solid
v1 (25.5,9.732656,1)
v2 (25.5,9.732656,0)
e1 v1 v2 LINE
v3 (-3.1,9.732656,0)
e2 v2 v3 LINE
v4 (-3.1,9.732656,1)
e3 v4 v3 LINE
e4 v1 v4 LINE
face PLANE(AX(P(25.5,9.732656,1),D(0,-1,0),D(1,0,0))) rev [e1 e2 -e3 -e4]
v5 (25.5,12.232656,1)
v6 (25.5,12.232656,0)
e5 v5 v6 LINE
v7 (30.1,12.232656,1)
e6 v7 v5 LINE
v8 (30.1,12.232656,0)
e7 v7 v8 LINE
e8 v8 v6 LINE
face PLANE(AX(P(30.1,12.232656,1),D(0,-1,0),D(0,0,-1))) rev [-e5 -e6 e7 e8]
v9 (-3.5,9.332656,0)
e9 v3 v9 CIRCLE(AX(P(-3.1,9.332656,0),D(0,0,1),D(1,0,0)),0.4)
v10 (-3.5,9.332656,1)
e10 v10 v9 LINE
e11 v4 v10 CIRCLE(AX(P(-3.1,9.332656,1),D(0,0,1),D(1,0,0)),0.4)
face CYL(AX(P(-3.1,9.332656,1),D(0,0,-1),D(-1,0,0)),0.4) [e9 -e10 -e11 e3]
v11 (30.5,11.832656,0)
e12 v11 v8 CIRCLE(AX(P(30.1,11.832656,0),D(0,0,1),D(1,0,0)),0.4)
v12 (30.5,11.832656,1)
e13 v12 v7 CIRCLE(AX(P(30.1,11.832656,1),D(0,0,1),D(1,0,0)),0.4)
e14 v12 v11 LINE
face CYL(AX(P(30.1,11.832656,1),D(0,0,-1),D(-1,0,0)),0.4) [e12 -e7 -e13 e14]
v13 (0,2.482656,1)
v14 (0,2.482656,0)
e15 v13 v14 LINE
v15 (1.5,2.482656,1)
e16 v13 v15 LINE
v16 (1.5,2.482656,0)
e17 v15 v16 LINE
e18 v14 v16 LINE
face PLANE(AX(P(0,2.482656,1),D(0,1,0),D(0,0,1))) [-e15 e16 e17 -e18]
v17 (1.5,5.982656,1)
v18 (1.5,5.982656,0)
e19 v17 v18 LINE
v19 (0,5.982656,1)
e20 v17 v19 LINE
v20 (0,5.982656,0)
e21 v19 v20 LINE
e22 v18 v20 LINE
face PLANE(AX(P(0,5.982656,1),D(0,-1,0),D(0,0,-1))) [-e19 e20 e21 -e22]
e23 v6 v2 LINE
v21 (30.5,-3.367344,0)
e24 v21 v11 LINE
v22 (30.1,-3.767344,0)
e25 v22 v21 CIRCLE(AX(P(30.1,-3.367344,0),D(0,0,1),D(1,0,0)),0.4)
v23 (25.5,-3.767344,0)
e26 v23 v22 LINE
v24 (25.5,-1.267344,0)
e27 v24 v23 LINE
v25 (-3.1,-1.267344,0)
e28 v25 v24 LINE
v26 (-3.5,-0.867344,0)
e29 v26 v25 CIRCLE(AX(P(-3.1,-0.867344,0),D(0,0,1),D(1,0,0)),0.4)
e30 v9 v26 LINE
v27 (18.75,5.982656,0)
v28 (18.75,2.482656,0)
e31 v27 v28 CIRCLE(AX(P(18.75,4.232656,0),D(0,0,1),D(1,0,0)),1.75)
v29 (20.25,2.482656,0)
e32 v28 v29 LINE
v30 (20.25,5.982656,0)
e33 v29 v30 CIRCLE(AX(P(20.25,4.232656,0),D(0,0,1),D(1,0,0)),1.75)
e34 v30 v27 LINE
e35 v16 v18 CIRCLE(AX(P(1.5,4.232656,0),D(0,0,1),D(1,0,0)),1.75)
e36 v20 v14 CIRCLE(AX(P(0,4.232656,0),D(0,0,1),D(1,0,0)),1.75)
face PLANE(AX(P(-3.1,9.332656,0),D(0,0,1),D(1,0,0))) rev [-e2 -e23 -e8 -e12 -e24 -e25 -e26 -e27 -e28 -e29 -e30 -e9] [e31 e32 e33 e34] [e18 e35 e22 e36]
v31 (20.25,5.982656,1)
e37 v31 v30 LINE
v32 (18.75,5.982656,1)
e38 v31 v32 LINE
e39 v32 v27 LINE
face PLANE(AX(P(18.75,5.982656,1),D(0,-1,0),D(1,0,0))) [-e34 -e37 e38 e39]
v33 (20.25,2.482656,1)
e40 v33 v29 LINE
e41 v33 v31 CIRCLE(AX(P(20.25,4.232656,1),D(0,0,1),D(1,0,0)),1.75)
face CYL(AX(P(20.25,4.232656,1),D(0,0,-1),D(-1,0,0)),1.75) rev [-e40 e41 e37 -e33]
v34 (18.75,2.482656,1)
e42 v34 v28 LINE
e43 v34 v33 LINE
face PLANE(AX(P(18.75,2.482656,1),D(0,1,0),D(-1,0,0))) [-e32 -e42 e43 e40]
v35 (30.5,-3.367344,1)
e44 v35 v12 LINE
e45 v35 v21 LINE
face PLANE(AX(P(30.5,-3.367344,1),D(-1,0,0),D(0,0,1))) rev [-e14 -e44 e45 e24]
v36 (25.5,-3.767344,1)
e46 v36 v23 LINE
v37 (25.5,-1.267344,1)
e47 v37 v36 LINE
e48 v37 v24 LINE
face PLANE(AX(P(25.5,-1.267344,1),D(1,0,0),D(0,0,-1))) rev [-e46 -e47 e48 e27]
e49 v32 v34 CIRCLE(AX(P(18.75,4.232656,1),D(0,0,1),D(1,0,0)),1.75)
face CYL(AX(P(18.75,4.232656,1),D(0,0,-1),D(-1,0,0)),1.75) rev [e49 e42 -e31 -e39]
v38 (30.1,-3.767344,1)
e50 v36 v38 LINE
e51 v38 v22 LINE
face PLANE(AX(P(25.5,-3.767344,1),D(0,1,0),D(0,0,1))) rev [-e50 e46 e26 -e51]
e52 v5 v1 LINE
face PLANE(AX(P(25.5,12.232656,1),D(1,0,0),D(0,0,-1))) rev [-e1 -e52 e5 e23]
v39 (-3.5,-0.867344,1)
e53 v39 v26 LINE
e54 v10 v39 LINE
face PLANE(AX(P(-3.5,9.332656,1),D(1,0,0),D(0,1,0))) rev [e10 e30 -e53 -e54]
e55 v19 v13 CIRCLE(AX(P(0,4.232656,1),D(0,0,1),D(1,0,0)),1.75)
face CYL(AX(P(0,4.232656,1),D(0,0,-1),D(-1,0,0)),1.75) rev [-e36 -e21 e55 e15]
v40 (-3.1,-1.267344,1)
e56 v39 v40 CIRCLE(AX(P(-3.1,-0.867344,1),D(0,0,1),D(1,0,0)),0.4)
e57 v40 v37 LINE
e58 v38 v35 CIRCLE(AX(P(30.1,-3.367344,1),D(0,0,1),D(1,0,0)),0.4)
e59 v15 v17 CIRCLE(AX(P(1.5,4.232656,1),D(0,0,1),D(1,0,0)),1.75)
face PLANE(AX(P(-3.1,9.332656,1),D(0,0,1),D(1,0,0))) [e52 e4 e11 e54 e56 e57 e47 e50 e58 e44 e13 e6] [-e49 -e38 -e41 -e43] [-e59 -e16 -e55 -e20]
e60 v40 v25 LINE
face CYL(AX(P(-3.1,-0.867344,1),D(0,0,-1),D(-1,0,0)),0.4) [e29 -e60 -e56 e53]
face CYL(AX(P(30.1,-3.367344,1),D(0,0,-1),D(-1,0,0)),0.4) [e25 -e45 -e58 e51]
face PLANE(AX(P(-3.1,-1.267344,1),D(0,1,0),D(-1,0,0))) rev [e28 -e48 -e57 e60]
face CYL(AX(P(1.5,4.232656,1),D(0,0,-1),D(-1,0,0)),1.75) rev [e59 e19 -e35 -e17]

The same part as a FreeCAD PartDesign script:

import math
import FreeCAD as App
import Part
import Sketcher

V = App.Vector

doc = App.newDocument("Part")
body = doc.addObject("PartDesign::Body", "Body")

sketch1 = doc.addObject("Sketcher::SketchObject", "Sketch")
body.addObject(sketch1)
sketch1.AttachmentSupport = (doc.XY_Plane, [""])
sketch1.MapMode = "FlatFace"
sketch1.addGeometry([
    Part.LineSegment(V(-3.1, -1.27, 0), V(25.5, -1.27, 0)),
    Part.LineSegment(V(25.5, -1.27, 0), V(25.5, -3.77, 0)),
    Part.LineSegment(V(25.5, -3.77, 0), V(30.1, -3.77, 0)),
    Part.ArcOfCircle(Part.Circle(V(30.1, -3.37, 0), V(0, 0, 1), 0.4), math.radians(-90), math.radians(0)),
    Part.LineSegment(V(30.5, -3.37, 0), V(30.5, 11.83, 0)),
    Part.ArcOfCircle(Part.Circle(V(30.1, 11.83, 0), V(0, 0, 1), 0.4), math.radians(0), math.radians(90)),
    Part.LineSegment(V(30.1, 12.23, 0), V(25.5, 12.23, 0)),
    Part.LineSegment(V(25.5, 12.23, 0), V(25.5, 9.73, 0)),
    Part.LineSegment(V(25.5, 9.73, 0), V(-3.1, 9.73, 0)),
    Part.ArcOfCircle(Part.Circle(V(-3.1, 9.33, 0), V(0, 0, 1), 0.4), math.radians(90), math.radians(180)),
    Part.LineSegment(V(-3.5, 9.33, 0), V(-3.5, -0.87, 0)),
    Part.ArcOfCircle(Part.Circle(V(-3.1, -0.87, 0), V(0, 0, 1), 0.4), math.radians(-180), math.radians(-90)),
    Part.ArcOfCircle(Part.Circle(V(0, 4.23, 0), V(0, 0, 1), 1.75), math.radians(90), math.radians(270)),
    Part.LineSegment(V(0, 5.98, 0), V(1.5, 5.98, 0)),
    Part.ArcOfCircle(Part.Circle(V(1.5, 4.23, 0), V(0, 0, 1), 1.75), math.radians(-90), math.radians(90)),
    Part.LineSegment(V(1.5, 2.48, 0), V(0, 2.48, 0)),
    Part.ArcOfCircle(Part.Circle(V(18.75, 4.23, 0), V(0, 0, 1), 1.75), math.radians(90), math.radians(270)),
    Part.LineSegment(V(18.75, 5.98, 0), V(20.25, 5.98, 0)),
    Part.ArcOfCircle(Part.Circle(V(20.25, 4.23, 0), V(0, 0, 1), 1.75), math.radians(-90), math.radians(90)),
    Part.LineSegment(V(20.25, 2.48, 0), V(18.75, 2.48, 0)),
], False)
sketch1.addConstraint([
    Sketcher.Constraint("Coincident", 0, 2, 1, 1),
    Sketcher.Constraint("Coincident", 1, 2, 2, 1),
    Sketcher.Constraint("Tangent", 2, 2, 3, 1),
    Sketcher.Constraint("Tangent", 3, 2, 4, 1),
    Sketcher.Constraint("Tangent", 4, 2, 5, 1),
    Sketcher.Constraint("Tangent", 5, 2, 6, 1),
    Sketcher.Constraint("Coincident", 6, 2, 7, 1),
    Sketcher.Constraint("Coincident", 7, 2, 8, 1),
    Sketcher.Constraint("Tangent", 8, 2, 9, 1),
    Sketcher.Constraint("Tangent", 9, 2, 10, 1),
    Sketcher.Constraint("Tangent", 10, 2, 11, 1),
    Sketcher.Constraint("Tangent", 11, 2, 0, 1),
    Sketcher.Constraint("Tangent", 12, 1, 13, 1),
    Sketcher.Constraint("Tangent", 13, 2, 14, 2),
    Sketcher.Constraint("Tangent", 14, 1, 15, 1),
    Sketcher.Constraint("Tangent", 15, 2, 12, 2),
    Sketcher.Constraint("Tangent", 16, 1, 17, 1),
    Sketcher.Constraint("Tangent", 17, 2, 18, 2),
    Sketcher.Constraint("Tangent", 18, 1, 19, 1),
    Sketcher.Constraint("Tangent", 19, 2, 16, 2),
    Sketcher.Constraint("Horizontal", 0),
    Sketcher.Constraint("Vertical", 1),
    Sketcher.Constraint("Horizontal", 2),
    Sketcher.Constraint("Vertical", 4),
    Sketcher.Constraint("Horizontal", 6),
    Sketcher.Constraint("Vertical", 7),
    Sketcher.Constraint("Horizontal", 8),
    Sketcher.Constraint("Vertical", 10),
    Sketcher.Constraint("Horizontal", 13),
    Sketcher.Constraint("Horizontal", 15),
    Sketcher.Constraint("Horizontal", 17),
    Sketcher.Constraint("Horizontal", 19),
    Sketcher.Constraint("Equal", 3, 5),
    Sketcher.Constraint("Equal", 5, 9),
    Sketcher.Constraint("Equal", 9, 11),
    Sketcher.Constraint("Equal", 14, 16),
    Sketcher.Constraint("PointOnObject", 12, 3, -2),
    Sketcher.Constraint("Horizontal", 14, 3, 16, 3),
    Sketcher.Constraint("Vertical", 1, 2, 6, 2),
    Sketcher.Constraint("Equal", 15, 17),
    Sketcher.Constraint("Equal", 1, 7),
    Sketcher.Constraint("Radius", 3, 0.4),
    Sketcher.Constraint("Radius", 12, 1.75),
    Sketcher.Constraint("DistanceX", 0, 1, 0, 2, 28.6),
    Sketcher.Constraint("DistanceX", 2, 1, 2, 2, 4.6),
    Sketcher.Constraint("DistanceX", 13, 1, 13, 2, 1.5),
    Sketcher.Constraint("DistanceY", 1, 2, 1, 1, 2.5),
    Sketcher.Constraint("DistanceY", 4, 1, 4, 2, 15.2),
    Sketcher.Constraint("DistanceX", 14, 3, 0, 2, 24.0),
    Sketcher.Constraint("DistanceY", 1, 2, 18, 3, 8.0),
    Sketcher.Constraint("DistanceX", -1, 1, 16, 3, 18.75),
    Sketcher.Constraint("DistanceY", 3, 3, -1, 1, 3.367344),
])
pad1 = doc.addObject("PartDesign::Pad", "Pad")
body.addObject(pad1)
pad1.Profile = sketch1
pad1.Length = 1

doc.recompute()
